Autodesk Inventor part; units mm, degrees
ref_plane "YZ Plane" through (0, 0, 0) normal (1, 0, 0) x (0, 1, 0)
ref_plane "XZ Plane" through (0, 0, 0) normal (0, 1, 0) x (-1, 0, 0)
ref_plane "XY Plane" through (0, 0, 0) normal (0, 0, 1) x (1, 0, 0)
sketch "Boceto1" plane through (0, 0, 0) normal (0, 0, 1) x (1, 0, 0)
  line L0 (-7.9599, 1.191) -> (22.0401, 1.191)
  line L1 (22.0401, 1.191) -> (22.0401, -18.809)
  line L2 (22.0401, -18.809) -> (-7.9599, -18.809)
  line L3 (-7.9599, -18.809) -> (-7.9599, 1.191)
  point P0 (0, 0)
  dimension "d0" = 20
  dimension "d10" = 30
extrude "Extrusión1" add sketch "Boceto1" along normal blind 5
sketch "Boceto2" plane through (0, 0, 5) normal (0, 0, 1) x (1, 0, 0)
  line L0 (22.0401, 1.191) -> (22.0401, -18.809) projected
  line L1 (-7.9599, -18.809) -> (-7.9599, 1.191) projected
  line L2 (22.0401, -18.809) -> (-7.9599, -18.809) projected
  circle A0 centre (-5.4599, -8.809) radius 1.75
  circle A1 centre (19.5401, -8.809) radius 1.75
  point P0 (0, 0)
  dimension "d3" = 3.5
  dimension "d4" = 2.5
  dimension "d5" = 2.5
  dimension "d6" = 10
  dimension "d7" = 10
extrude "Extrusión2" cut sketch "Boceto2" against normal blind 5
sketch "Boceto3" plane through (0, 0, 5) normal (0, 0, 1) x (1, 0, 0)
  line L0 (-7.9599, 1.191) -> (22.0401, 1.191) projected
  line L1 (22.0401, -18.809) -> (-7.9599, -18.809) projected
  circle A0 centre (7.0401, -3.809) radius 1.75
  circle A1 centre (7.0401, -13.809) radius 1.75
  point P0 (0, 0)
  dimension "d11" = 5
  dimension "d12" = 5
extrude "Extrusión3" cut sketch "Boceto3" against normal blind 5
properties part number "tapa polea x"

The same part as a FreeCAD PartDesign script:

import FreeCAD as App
import Part
import Sketcher
from FreeCAD import Vector

doc = App.newDocument("Part")
body = doc.addObject("PartDesign::Body", "Body")

sketch1 = doc.addObject("Sketcher::SketchObject", "Sketch")
body.addObject(sketch1)
sketch1.AttachmentSupport = (doc.XY_Plane, [""])
sketch1.MapMode = "FlatFace"
sketch1.addGeometry([
    Part.LineSegment(Vector(22, 1, 0), Vector(-8, 1, 0)),
    Part.LineSegment(Vector(-8, 1, 0), Vector(-8, -19, 0)),
    Part.LineSegment(Vector(-8, -19, 0), Vector(22, -19, 0)),
    Part.LineSegment(Vector(22, -19, 0), Vector(22, 1, 0)),
], False)
sketch1.addConstraint([
    Sketcher.Constraint("Coincident", 0, 2, 1, 1),
    Sketcher.Constraint("Coincident", 1, 2, 2, 1),
    Sketcher.Constraint("Coincident", 2, 2, 3, 1),
    Sketcher.Constraint("Coincident", 3, 2, 0, 1),
    Sketcher.Constraint("Horizontal", 0),
    Sketcher.Constraint("Vertical", 1),
    Sketcher.Constraint("Horizontal", 2),
    Sketcher.Constraint("Vertical", 3),
    Sketcher.Constraint("DistanceX", 0, 2, 0, 1, 30.0),
    Sketcher.Constraint("DistanceY", 1, 2, 1, 1, 20.0),
    Sketcher.Constraint("DistanceX", 0, 2, -1, 1, 7.96),
    Sketcher.Constraint("DistanceY", -1, 1, 0, 2, 1.191),
])
pad1 = doc.addObject("PartDesign::Pad", "Pad")
body.addObject(pad1)
pad1.Profile = sketch1
pad1.Length = 5

sketch2 = doc.addObject("Sketcher::SketchObject", "Sketch001")
body.addObject(sketch2)
sketch2.AttachmentSupport = (doc.XY_Plane, [""])
sketch2.MapMode = "FlatFace"
sketch2.AttachmentOffset = App.Placement(Vector(0, 0, 5), App.Rotation())
sketch2.addGeometry([
    Part.Circle(Vector(-5.5, -8.8, 0), Vector(0, 0, 1), 1.8),
    Part.Circle(Vector(19.5, -8.8, 0), Vector(0, 0, 1), 1.8),
], False)
sketch2.addConstraint([
    Sketcher.Constraint("Equal", 0, 1),
    Sketcher.Constraint("Horizontal", 0, 3, 1, 3),
    Sketcher.Constraint("Diameter", 0, 3.5),
    Sketcher.Constraint("DistanceX", 0, 3, 1, 3, 25.0),
    Sketcher.Constraint("DistanceX", 0, 3, -1, 1, 5.46),
    Sketcher.Constraint("DistanceY", 0, 3, -1, 1, 8.809),
])
pocket1 = doc.addObject("PartDesign::Pocket", "Pocket")
body.addObject(pocket1)
pocket1.Profile = sketch2
pocket1.Length = 5

sketch3 = doc.addObject("Sketcher::SketchObject", "Sketch002")
body.addObject(sketch3)
sketch3.AttachmentSupport = (doc.XY_Plane, [""])
sketch3.MapMode = "FlatFace"
sketch3.AttachmentOffset = App.Placement(Vector(0, 0, 5), App.Rotation())
sketch3.addGeometry([
    Part.Circle(Vector(7, -3.8, 0), Vector(0, 0, 1), 1.8),
    Part.Circle(Vector(7, -13.8, 0), Vector(0, 0, 1), 1.8),
], False)
sketch3.addConstraint([
    Sketcher.Constraint("Equal", 0, 1),
    Sketcher.Constraint("Vertical", 0, 3, 1, 3),
    Sketcher.Constraint("Diameter", 0, 3.5),
    Sketcher.Constraint("DistanceY", 1, 3, 0, 3, 10.0),
    Sketcher.Constraint("DistanceX", -1, 1, 0, 3, 7.04),
    Sketcher.Constraint("DistanceY", 0, 3, -1, 1, 3.809),
])
pocket2 = doc.addObject("PartDesign::Pocket", "Pocket001")
body.addObject(pocket2)
pocket2.Profile = sketch3
pocket2.Length = 5

doc.recompute()
